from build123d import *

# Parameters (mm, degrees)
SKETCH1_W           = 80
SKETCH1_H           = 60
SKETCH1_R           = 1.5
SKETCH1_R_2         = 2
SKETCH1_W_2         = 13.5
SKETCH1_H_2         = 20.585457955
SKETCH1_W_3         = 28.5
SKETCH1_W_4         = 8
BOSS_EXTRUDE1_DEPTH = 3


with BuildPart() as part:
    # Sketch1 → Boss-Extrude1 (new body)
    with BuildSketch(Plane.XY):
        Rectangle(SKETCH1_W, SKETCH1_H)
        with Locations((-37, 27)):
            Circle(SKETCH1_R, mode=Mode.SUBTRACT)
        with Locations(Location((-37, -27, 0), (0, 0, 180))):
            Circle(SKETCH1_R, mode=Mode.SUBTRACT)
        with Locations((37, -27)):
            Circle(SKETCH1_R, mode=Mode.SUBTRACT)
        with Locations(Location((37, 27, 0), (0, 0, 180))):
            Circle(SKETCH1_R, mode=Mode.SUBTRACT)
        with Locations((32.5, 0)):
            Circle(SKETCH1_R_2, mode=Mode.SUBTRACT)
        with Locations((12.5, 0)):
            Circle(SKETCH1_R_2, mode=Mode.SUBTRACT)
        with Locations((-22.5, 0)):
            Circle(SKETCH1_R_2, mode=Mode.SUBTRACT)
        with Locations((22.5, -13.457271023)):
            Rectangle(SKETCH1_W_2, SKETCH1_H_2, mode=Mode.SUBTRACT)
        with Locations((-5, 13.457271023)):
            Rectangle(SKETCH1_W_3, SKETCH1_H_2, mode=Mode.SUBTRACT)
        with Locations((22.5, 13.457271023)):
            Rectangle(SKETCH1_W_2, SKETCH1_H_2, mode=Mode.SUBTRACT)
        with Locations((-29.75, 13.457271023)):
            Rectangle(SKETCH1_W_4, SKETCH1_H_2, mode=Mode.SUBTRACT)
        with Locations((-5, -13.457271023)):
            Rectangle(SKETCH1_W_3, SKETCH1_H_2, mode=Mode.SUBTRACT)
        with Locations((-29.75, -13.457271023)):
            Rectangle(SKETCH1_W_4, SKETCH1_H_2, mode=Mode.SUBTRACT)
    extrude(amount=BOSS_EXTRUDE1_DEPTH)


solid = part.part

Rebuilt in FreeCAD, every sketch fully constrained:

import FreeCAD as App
import Part
import Sketcher

V = App.Vector

doc = App.newDocument("Part")
body = doc.addObject("PartDesign::Body", "Body")

sketch1 = body.newObject("Sketcher::SketchObject", "Sketch")
sketch1.AttachmentSupport = (doc.getObject("XY_Plane"), [""])
sketch1.MapMode = "FlatFace"
sketch1.addGeometry([
    Part.LineSegment(V(-40, 30, 0), V(-40, -30, 0)),
    Part.LineSegment(V(-40, -30, 0), V(40, -30, 0)),
    Part.LineSegment(V(40, -30, 0), V(40, 30, 0)),
    Part.LineSegment(V(40, 30, 0), V(-40, 30, 0)),
    Part.Circle(V(-37, -27, 0), V(0, 0, 1), 1.5),
    Part.LineSegment(V(-25.75, -23.75, 0), V(-33.75, -23.75, 0)),
    Part.LineSegment(V(-33.75, -23.75, 0), V(-33.75, -3.164542, 0)),
    Part.LineSegment(V(-33.75, -3.164542, 0), V(-25.75, -3.164542, 0)),
    Part.LineSegment(V(-25.75, -3.164542, 0), V(-25.75, -23.75, 0)),
    Part.LineSegment(V(9.25, -23.75, 0), V(-19.25, -23.75, 0)),
    Part.LineSegment(V(-19.25, -23.75, 0), V(-19.25, -3.164542, 0)),
    Part.LineSegment(V(-19.25, -3.164542, 0), V(9.25, -3.164542, 0)),
    Part.LineSegment(V(9.25, -3.164542, 0), V(9.25, -23.75, 0)),
    Part.Circle(V(37, -27, 0), V(0, 0, 1), 1.5),
    Part.LineSegment(V(29.25, -23.75, 0), V(15.75, -23.75, 0)),
    Part.LineSegment(V(15.75, -23.75, 0), V(15.75, -3.164542, 0)),
    Part.LineSegment(V(15.75, -3.164542, 0), V(29.25, -3.164542, 0)),
    Part.LineSegment(V(29.25, -3.164542, 0), V(29.25, -23.75, 0)),
    Part.Circle(V(-22.5, 0, 0), V(0, 0, 1), 2),
    Part.LineSegment(V(-25.75, 3.164542, 0), V(-33.75, 3.164542, 0)),
    Part.LineSegment(V(-33.75, 3.164542, 0), V(-33.75, 23.75, 0)),
    Part.LineSegment(V(-33.75, 23.75, 0), V(-25.75, 23.75, 0)),
    Part.LineSegment(V(-25.75, 23.75, 0), V(-25.75, 3.164542, 0)),
    Part.LineSegment(V(9.25, 3.164542, 0), V(-19.25, 3.164542, 0)),
    Part.LineSegment(V(-19.25, 3.164542, 0), V(-19.25, 23.75, 0)),
    Part.LineSegment(V(-19.25, 23.75, 0), V(9.25, 23.75, 0)),
    Part.LineSegment(V(9.25, 23.75, 0), V(9.25, 3.164542, 0)),
    Part.Circle(V(-37, 27, 0), V(0, 0, 1), 1.5),
    Part.Circle(V(12.5, 0, 0), V(0, 0, 1), 2),
    Part.Circle(V(32.5, 0, 0), V(0, 0, 1), 2),
    Part.LineSegment(V(29.25, 3.164542, 0), V(15.75, 3.164542, 0)),
    Part.LineSegment(V(15.75, 3.164542, 0), V(15.75, 23.75, 0)),
    Part.LineSegment(V(15.75, 23.75, 0), V(29.25, 23.75, 0)),
    Part.LineSegment(V(29.25, 23.75, 0), V(29.25, 3.164542, 0)),
    Part.Circle(V(37, 27, 0), V(0, 0, 1), 1.5),
], False)
sketch1.addConstraint([
    Sketcher.Constraint("Coincident", 0, 2, 1, 1),
    Sketcher.Constraint("Coincident", 1, 2, 2, 1),
    Sketcher.Constraint("Coincident", 2, 2, 3, 1),
    Sketcher.Constraint("Coincident", 3, 2, 0, 1),
    Sketcher.Constraint("Coincident", 5, 2, 6, 1),
    Sketcher.Constraint("Coincident", 6, 2, 7, 1),
    Sketcher.Constraint("Coincident", 7, 2, 8, 1),
    Sketcher.Constraint("Coincident", 8, 2, 5, 1),
    Sketcher.Constraint("Coincident", 9, 2, 10, 1),
    Sketcher.Constraint("Coincident", 10, 2, 11, 1),
    Sketcher.Constraint("Coincident", 11, 2, 12, 1),
    Sketcher.Constraint("Coincident", 12, 2, 9, 1),
    Sketcher.Constraint("Coincident", 14, 2, 15, 1),
    Sketcher.Constraint("Coincident", 15, 2, 16, 1),
    Sketcher.Constraint("Coincident", 16, 2, 17, 1),
    Sketcher.Constraint("Coincident", 17, 2, 14, 1),
    Sketcher.Constraint("Coincident", 19, 2, 20, 1),
    Sketcher.Constraint("Coincident", 20, 2, 21, 1),
    Sketcher.Constraint("Coincident", 21, 2, 22, 1),
    Sketcher.Constraint("Coincident", 22, 2, 19, 1),
    Sketcher.Constraint("Coincident", 23, 2, 24, 1),
    Sketcher.Constraint("Coincident", 24, 2, 25, 1),
    Sketcher.Constraint("Coincident", 25, 2, 26, 1),
    Sketcher.Constraint("Coincident", 26, 2, 23, 1),
    Sketcher.Constraint("Coincident", 30, 2, 31, 1),
    Sketcher.Constraint("Coincident", 31, 2, 32, 1),
    Sketcher.Constraint("Coincident", 32, 2, 33, 1),
    Sketcher.Constraint("Coincident", 33, 2, 30, 1),
    Sketcher.Constraint("Vertical", 0),
    Sketcher.Constraint("Horizontal", 1),
    Sketcher.Constraint("Vertical", 2),
    Sketcher.Constraint("Horizontal", 3),
    Sketcher.Constraint("Horizontal", 5),
    Sketcher.Constraint("Vertical", 6),
    Sketcher.Constraint("Horizontal", 7),
    Sketcher.Constraint("Vertical", 8),
    Sketcher.Constraint("Horizontal", 9),
    Sketcher.Constraint("Vertical", 10),
    Sketcher.Constraint("Horizontal", 11),
    Sketcher.Constraint("Vertical", 12),
    Sketcher.Constraint("Horizontal", 14),
    Sketcher.Constraint("Vertical", 15),
    Sketcher.Constraint("Horizontal", 16),
    Sketcher.Constraint("Vertical", 17),
    Sketcher.Constraint("Horizontal", 19),
    Sketcher.Constraint("Vertical", 20),
    Sketcher.Constraint("Horizontal", 21),
    Sketcher.Constraint("Vertical", 22),
    Sketcher.Constraint("Horizontal", 23),
    Sketcher.Constraint("Vertical", 24),
    Sketcher.Constraint("Horizontal", 25),
    Sketcher.Constraint("Vertical", 26),
    Sketcher.Constraint("Horizontal", 30),
    Sketcher.Constraint("Vertical", 31),
    Sketcher.Constraint("Horizontal", 32),
    Sketcher.Constraint("Vertical", 33),
    Sketcher.Constraint("Equal", 4, 13),
    Sketcher.Constraint("Equal", 13, 27),
    Sketcher.Constraint("Equal", 18, 28),
    Sketcher.Constraint("Equal", 28, 29),
    Sketcher.Constraint("Equal", 27, 34),
    Sketcher.Constraint("Symmetric", 13, 3, 27, 3, -1, 1),
    Sketcher.Constraint("Symmetric", 4, 3, 34, 3, -1, 1),
    Sketcher.Constraint("Symmetric", 0, 2, 2, 2, -1, 1),
    Sketcher.Constraint("Symmetric", 4, 3, 13, 3, -2),
    Sketcher.Constraint("Symmetric", 6, 2, 19, 2, -1),
    Sketcher.Constraint("Symmetric", 8, 2, 21, 2, -1),
    Sketcher.Constraint("Symmetric", 10, 2, 23, 2, -1),
    Sketcher.Constraint("Symmetric", 12, 2, 25, 2, -1),
    Sketcher.Constraint("Symmetric", 15, 2, 30, 2, -1),
    Sketcher.Constraint("Symmetric", 17, 2, 32, 2, -1),
    Sketcher.Constraint("PointOnObject", 18, 3, -1),
    Sketcher.Constraint("PointOnObject", 28, 3, -1),
    Sketcher.Constraint("PointOnObject", 29, 3, -1),
    Sketcher.Constraint("Horizontal", 8, 2, 9, 2),
    Sketcher.Constraint("Horizontal", 7, 2, 10, 2),
    Sketcher.Constraint("Horizontal", 12, 2, 14, 2),
    Sketcher.Constraint("Horizontal", 11, 2, 15, 2),
    Sketcher.Constraint("Diameter", 4, 3.0),
    Sketcher.Constraint("Diameter", 18, 4.0),
    Sketcher.Constraint("DistanceX", 1, 1, 1, 2, 80.0),
    Sketcher.Constraint("DistanceX", 5, 2, 5, 1, 8.0),
    Sketcher.Constraint("DistanceY", 0, 2, 0, 1, 60.0),
    Sketcher.Constraint("DistanceX", 9, 2, 9, 1, 28.5),
    Sketcher.Constraint("DistanceX", 14, 2, 14, 1, 13.5),
    Sketcher.Constraint("DistanceX", 4, 3, -1, 1, 37.0),
    Sketcher.Constraint("DistanceY", 4, 3, -1, 1, 27.0),
    Sketcher.Constraint("DistanceX", 18, 3, 28, 3, 35.0),
    Sketcher.Constraint("DistanceX", 28, 3, 29, 3, 20.0),
    Sketcher.Constraint("DistanceX", 7, 2, 11, 2, 35.0),
    Sketcher.Constraint("DistanceX", 11, 2, 16, 2, 20.0),
    Sketcher.Constraint("DistanceX", 18, 3, -1, 1, 22.5),
    Sketcher.Constraint("DistanceX", 5, 2, -1, 1, 33.75),
    Sketcher.Constraint("DistanceY", 5, 2, -1, 1, 23.75),
    Sketcher.Constraint("DistanceY", 6, 1, 6, 2, 20.585458),
])
pad1 = body.newObject("PartDesign::Pad", "Pad")
pad1.Profile = sketch1
pad1.Length = 3

doc.recompute()
